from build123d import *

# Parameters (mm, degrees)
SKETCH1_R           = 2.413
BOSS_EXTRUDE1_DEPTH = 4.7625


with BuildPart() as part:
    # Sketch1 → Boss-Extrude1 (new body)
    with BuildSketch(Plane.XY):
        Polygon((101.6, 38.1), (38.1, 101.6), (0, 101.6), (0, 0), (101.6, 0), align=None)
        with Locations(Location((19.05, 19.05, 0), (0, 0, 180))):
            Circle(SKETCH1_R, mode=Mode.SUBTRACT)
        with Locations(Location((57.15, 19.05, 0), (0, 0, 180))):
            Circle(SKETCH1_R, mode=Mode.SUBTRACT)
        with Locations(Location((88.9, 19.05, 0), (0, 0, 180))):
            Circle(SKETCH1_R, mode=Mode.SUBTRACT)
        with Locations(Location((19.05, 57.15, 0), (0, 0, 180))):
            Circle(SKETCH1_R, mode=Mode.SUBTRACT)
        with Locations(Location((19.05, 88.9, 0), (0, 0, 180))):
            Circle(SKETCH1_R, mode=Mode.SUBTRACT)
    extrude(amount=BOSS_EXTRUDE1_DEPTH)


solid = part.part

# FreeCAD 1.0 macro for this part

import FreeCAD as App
import Part
import Sketcher
from FreeCAD import Vector
Q = App.Units.Quantity


def add_polygon(sketch, points):
    """Adds a closed chain of lines whose ends are joined by coincident constraints."""
    first, n = sketch.GeometryCount, len(points)
    for a, b in zip(points, points[1:] + points[:1]):
        sketch.addGeometry(Part.LineSegment(App.Vector(*a, 0), App.Vector(*b, 0)), False)
    for i in range(n):
        sketch.addConstraint(Sketcher.Constraint("Coincident", first + i, 2, first + (i + 1) % n, 1))

doc = App.newDocument("Part")
params = doc.addObject("Spreadsheet::Sheet", "Params")
for row, (alias, value) in enumerate([
    ("sketch1_diameter", "0.19 in"),
    ("sketch1_width", "4 in"),
    ("sketch1_width2", "1.5 in"),
    ("pad1_length", "0.1875 in"),
], start=1):
    params.set(f"A{row}", alias)
    params.set(f"B{row}", "=" + value)
    params.setAlias(f"B{row}", alias)

body = doc.addObject("PartDesign::Body", "Body")

sketch1 = body.newObject("Sketcher::SketchObject", "Sketch")
sketch1.AttachmentSupport = (doc.getObject("XY_Plane"), [""])
sketch1.MapMode = "FlatFace"
add_polygon(sketch1, [(101.6, 38.1), (38.1, 101.6), (0, 101.6), (0, 0), (101.6, 0)])
sketch1.addGeometry(Part.Circle(Vector(19.1, 19.1, 0), Vector(0, 0, 1), 2.4), False)
sketch1.addGeometry(Part.Circle(Vector(57.1, 19.1, 0), Vector(0, 0, 1), 2.4), False)
sketch1.addGeometry(Part.Circle(Vector(88.9, 19.1, 0), Vector(0, 0, 1), 2.4), False)
sketch1.addGeometry(Part.Circle(Vector(19.1, 57.1, 0), Vector(0, 0, 1), 2.4), False)
sketch1.addGeometry(Part.Circle(Vector(19.1, 88.9, 0), Vector(0, 0, 1), 2.4), False)
sketch1.addConstraint(Sketcher.Constraint("Horizontal", 1))
sketch1.addConstraint(Sketcher.Constraint("Vertical", 2))
sketch1.addConstraint(Sketcher.Constraint("Horizontal", 3))
sketch1.addConstraint(Sketcher.Constraint("Vertical", 4))
sketch1.addConstraint(Sketcher.Constraint("Coincident", 2, 2, -1, 1))
sketch1.addConstraint(Sketcher.Constraint("Equal", 5, 6))
sketch1.addConstraint(Sketcher.Constraint("Equal", 6, 7))
sketch1.addConstraint(Sketcher.Constraint("Equal", 7, 8))
sketch1.addConstraint(Sketcher.Constraint("Equal", 8, 9))
sketch1.addConstraint(Sketcher.Constraint("Horizontal", 5, 3, 6, 3))
sketch1.addConstraint(Sketcher.Constraint("Horizontal", 6, 3, 7, 3))
sketch1.addConstraint(Sketcher.Constraint("Vertical", 5, 3, 8, 3))
sketch1.addConstraint(Sketcher.Constraint("Vertical", 8, 3, 9, 3))
sketch1.addConstraint(Sketcher.Constraint("Equal", 3, 2))
sketch1.addConstraint(Sketcher.Constraint("Equal", 1, 4))
sketch1.addConstraint(Sketcher.Constraint("Diameter", 5, Q("0.19 in")))
sketch1.addConstraint(Sketcher.Constraint("DistanceX", 3, 1, 3, 2, Q("4 in")))
sketch1.addConstraint(Sketcher.Constraint("DistanceX", 1, 2, 1, 1, Q("1.5 in")))
sketch1.addConstraint(Sketcher.Constraint("DistanceX", 0, 2, 7, 3, Q("2 in")))
sketch1.addConstraint(Sketcher.Constraint("DistanceY", -1, 1, 9, 3, Q("3.5 in")))
sketch1.addConstraint(Sketcher.Constraint("DistanceX", 5, 3, 6, 3, Q("1.5 in")))
sketch1.addConstraint(Sketcher.Constraint("DistanceY", 5, 3, 8, 3, Q("1.5 in")))
sketch1.addConstraint(Sketcher.Constraint("DistanceX", -1, 1, 5, 3, Q("0.75 in")))
sketch1.addConstraint(Sketcher.Constraint("DistanceY", -1, 1, 5, 3, Q("0.75 in")))
sketch1.setExpression("Constraints[20]", "Params.sketch1_diameter")
sketch1.setExpression("Constraints[21]", "Params.sketch1_width")
sketch1.setExpression("Constraints[22]", "Params.sketch1_width2")
pad1 = body.newObject("PartDesign::Pad", "Pad")
pad1.Profile = sketch1
pad1.setExpression("Length", "Params.pad1_length")

doc.recompute()
